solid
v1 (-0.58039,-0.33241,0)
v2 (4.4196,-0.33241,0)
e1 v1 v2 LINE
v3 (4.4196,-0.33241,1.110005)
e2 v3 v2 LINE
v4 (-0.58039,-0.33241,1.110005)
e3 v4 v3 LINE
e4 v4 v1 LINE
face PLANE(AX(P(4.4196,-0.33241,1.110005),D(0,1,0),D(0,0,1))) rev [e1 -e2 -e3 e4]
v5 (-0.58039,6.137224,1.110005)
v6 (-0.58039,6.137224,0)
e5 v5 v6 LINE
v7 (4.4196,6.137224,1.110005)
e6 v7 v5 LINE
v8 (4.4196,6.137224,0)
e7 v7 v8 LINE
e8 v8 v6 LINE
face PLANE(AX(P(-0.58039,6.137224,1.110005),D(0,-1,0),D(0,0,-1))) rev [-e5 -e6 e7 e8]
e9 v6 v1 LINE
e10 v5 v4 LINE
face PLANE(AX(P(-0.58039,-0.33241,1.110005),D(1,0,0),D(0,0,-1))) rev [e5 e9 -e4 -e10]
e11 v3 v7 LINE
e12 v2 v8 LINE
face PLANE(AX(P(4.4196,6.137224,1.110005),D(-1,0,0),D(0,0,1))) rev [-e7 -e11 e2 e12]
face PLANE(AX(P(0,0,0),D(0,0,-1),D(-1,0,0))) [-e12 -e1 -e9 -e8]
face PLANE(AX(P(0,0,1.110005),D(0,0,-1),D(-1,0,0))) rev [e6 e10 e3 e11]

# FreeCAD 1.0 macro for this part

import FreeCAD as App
import Part
import Sketcher
from FreeCAD import Vector
Q = App.Units.Quantity

doc = App.newDocument("Part")
body = doc.addObject("PartDesign::Body", "Body")

# Sketch on XY plane
sketch1 = body.newObject("Sketcher::SketchObject", "Sketch")
sketch1.AttachmentSupport = (doc.getObject("XY_Plane"), [""])
sketch1.MapMode = "FlatFace"
sketch1.addGeometry([
    Part.LineSegment(Vector(-0.6, 6.1, 0), Vector(-0.6, -0.3, 0)),
    Part.LineSegment(Vector(-0.6, -0.3, 0), Vector(4.4, -0.3, 0)),
    Part.LineSegment(Vector(4.4, -0.3, 0), Vector(4.4, 6.1, 0)),
    Part.LineSegment(Vector(4.4, 6.1, 0), Vector(-0.6, 6.1, 0)),
], False)
sketch1.addConstraint([
    Sketcher.Constraint("Coincident", 0, 2, 1, 1),
    Sketcher.Constraint("Coincident", 1, 2, 2, 1),
    Sketcher.Constraint("Coincident", 2, 2, 3, 1),
    Sketcher.Constraint("Coincident", 3, 2, 0, 1),
    Sketcher.Constraint("Vertical", 0),
    Sketcher.Constraint("Horizontal", 1),
    Sketcher.Constraint("Vertical", 2),
    Sketcher.Constraint("Horizontal", 3),
    Sketcher.Constraint("DistanceX", 1, 1, 1, 2, Q("4.99999 mm")),
    Sketcher.Constraint("DistanceX", -1, 1, 1, 2, Q("4.4196 mm")),
    Sketcher.Constraint("DistanceY", 0, 2, 0, 1, Q("6.469634 mm")),
    Sketcher.Constraint("DistanceY", 0, 2, -1, 1, Q("0.33241 mm")),
])
pad1 = body.newObject("PartDesign::Pad", "Pad")
pad1.Profile = sketch1
pad1.Length = 1.110005

doc.recompute()
